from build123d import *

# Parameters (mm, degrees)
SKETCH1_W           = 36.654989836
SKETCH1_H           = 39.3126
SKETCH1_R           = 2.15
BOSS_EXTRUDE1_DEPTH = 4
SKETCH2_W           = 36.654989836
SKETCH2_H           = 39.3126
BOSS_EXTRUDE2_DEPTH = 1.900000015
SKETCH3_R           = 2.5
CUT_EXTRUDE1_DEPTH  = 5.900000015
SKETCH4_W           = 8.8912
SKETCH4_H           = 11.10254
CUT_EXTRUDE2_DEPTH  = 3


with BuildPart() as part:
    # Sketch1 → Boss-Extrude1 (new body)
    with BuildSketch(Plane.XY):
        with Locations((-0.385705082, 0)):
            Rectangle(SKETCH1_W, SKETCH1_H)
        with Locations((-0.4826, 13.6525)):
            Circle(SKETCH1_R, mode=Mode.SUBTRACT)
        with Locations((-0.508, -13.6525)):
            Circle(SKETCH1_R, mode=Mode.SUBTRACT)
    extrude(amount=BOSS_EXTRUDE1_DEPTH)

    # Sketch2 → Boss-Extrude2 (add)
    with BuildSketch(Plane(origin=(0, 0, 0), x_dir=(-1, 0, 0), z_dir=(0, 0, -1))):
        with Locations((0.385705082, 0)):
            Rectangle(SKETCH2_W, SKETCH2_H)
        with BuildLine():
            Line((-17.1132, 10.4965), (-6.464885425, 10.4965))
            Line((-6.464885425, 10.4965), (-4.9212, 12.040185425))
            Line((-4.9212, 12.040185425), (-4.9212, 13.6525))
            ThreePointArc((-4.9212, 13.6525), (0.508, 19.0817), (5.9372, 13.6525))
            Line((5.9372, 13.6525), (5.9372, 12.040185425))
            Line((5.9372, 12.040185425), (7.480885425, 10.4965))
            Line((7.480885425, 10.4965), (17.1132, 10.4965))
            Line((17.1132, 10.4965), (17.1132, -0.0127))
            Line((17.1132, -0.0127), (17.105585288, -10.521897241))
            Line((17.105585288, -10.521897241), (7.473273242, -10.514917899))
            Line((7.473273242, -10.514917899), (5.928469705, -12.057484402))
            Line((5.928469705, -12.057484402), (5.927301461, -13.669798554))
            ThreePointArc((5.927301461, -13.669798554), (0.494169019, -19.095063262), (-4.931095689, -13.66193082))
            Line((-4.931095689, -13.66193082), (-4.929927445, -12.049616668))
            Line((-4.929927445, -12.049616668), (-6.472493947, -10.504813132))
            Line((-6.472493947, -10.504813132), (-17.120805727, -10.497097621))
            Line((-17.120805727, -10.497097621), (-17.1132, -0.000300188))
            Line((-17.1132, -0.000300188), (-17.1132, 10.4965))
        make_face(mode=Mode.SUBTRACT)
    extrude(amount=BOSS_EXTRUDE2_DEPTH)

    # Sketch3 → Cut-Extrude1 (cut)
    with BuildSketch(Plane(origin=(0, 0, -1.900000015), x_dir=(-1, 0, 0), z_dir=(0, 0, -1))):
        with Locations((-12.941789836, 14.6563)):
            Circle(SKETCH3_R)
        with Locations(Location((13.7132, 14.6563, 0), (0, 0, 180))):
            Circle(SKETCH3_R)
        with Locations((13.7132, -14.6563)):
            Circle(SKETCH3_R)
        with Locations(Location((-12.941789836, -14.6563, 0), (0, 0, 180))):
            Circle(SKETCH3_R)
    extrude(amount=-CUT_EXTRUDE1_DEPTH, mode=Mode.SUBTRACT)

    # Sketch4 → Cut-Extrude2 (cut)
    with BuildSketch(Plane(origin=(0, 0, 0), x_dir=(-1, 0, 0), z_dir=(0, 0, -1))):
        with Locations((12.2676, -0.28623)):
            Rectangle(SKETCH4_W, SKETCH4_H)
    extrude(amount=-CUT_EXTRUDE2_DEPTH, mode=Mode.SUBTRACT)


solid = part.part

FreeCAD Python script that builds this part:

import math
import FreeCAD as App
import Part
import Sketcher

doc = App.newDocument("Part")
body = doc.addObject("PartDesign::Body", "Body")

sketch1 = doc.addObject("Sketcher::SketchObject", "Sketch")
body.addObject(sketch1)
sketch1.AttachmentSupport = (doc.XY_Plane, [""])
sketch1.MapMode = "FlatFace"
sketch1.addGeometry([
    Part.LineSegment(App.Vector(-18.7132, 19.6563, 0), App.Vector(-18.7132, -19.6563, 0)),
    Part.LineSegment(App.Vector(-18.7132, -19.6563, 0), App.Vector(17.94179, -19.6563, 0)),
    Part.LineSegment(App.Vector(17.94179, -19.6563, 0), App.Vector(17.94179, 19.6563, 0)),
    Part.LineSegment(App.Vector(17.94179, 19.6563, 0), App.Vector(-18.7132, 19.6563, 0)),
    Part.Circle(App.Vector(-0.508, -13.6525, 0), App.Vector(0, 0, 1), 2.15),
    Part.Circle(App.Vector(-0.4826, 13.6525, 0), App.Vector(0, 0, 1), 2.15),
], False)
sketch1.addConstraint([
    Sketcher.Constraint("Coincident", 0, 2, 1, 1),
    Sketcher.Constraint("Coincident", 1, 2, 2, 1),
    Sketcher.Constraint("Coincident", 2, 2, 3, 1),
    Sketcher.Constraint("Coincident", 3, 2, 0, 1),
    Sketcher.Constraint("Vertical", 0),
    Sketcher.Constraint("Horizontal", 1),
    Sketcher.Constraint("Vertical", 2),
    Sketcher.Constraint("Horizontal", 3),
    Sketcher.Constraint("Equal", 4, 5),
    Sketcher.Constraint("Diameter", 4, 4.3),
    Sketcher.Constraint("DistanceY", 0, 2, 0, 1, 39.3126),
    Sketcher.Constraint("DistanceX", 4, 3, -1, 1, 0.508),
    Sketcher.Constraint("DistanceY", 4, 3, 5, 3, 27.305),
    Sketcher.Constraint("DistanceX", 1, 1, 1, 2, 36.65499),
    Sketcher.Constraint("DistanceY", 4, 3, -1, 1, 13.6525),
    Sketcher.Constraint("DistanceX", 5, 3, -1, 1, 0.4826),
    Sketcher.Constraint("DistanceX", 0, 2, -1, 1, 18.7132),
    Sketcher.Constraint("DistanceY", 0, 2, -1, 1, 19.6563),
])
pad1 = doc.addObject("PartDesign::Pad", "Pad")
body.addObject(pad1)
pad1.Profile = sketch1
pad1.Length = 4

sketch2 = doc.addObject("Sketcher::SketchObject", "Sketch001")
body.addObject(sketch2)
sketch2.AttachmentSupport = (doc.XY_Plane, [""])
sketch2.MapMode = "FlatFace"
sketch2.addGeometry([
    Part.LineSegment(App.Vector(17.94179, 19.6563, 0), App.Vector(17.94179, -19.6563, 0)),
    Part.LineSegment(App.Vector(17.94179, -19.6563, 0), App.Vector(-18.7132, -19.6563, 0)),
    Part.LineSegment(App.Vector(-18.7132, -19.6563, 0), App.Vector(-18.7132, 19.6563, 0)),
    Part.LineSegment(App.Vector(-18.7132, 19.6563, 0), App.Vector(17.94179, 19.6563, 0)),
    Part.LineSegment(App.Vector(17.1132, -0.0003, 0), App.Vector(17.1132, 10.4965, 0)),
    Part.LineSegment(App.Vector(17.1132, 10.4965, 0), App.Vector(6.464885, 10.4965, 0)),
    Part.LineSegment(App.Vector(6.464885, 10.4965, 0), App.Vector(4.9212, 12.040185, 0)),
    Part.LineSegment(App.Vector(4.9212, 12.040185, 0), App.Vector(4.9212, 13.6525, 0)),
    Part.ArcOfCircle(Part.Circle(App.Vector(-0.508, 13.6525, 0), App.Vector(0, 0, 1), 5.4292), math.radians(0), math.radians(180)),
    Part.LineSegment(App.Vector(-5.9372, 13.6525, 0), App.Vector(-5.9372, 12.040185, 0)),
    Part.LineSegment(App.Vector(-5.9372, 12.040185, 0), App.Vector(-7.480885, 10.4965, 0)),
    Part.LineSegment(App.Vector(-7.480885, 10.4965, 0), App.Vector(-17.1132, 10.4965, 0)),
    Part.LineSegment(App.Vector(-17.1132, 10.4965, 0), App.Vector(-17.1132, -0.0127, 0)),
    Part.LineSegment(App.Vector(-17.1132, -0.0127, 0), App.Vector(-17.105585, -10.521897, 0)),
    Part.LineSegment(App.Vector(-17.105585, -10.521897, 0), App.Vector(-7.473273, -10.514918, 0)),
    Part.LineSegment(App.Vector(-7.473273, -10.514918, 0), App.Vector(-5.92847, -12.057484, 0)),
    Part.LineSegment(App.Vector(-5.92847, -12.057484, 0), App.Vector(-5.927301, -13.669799, 0)),
    Part.ArcOfCircle(Part.Circle(App.Vector(-0.498103, -13.665865, 0), App.Vector(0, 0, 1), 5.4292), math.radians(-179.958485), math.radians(0.041515)),
    Part.LineSegment(App.Vector(4.931096, -13.661931, 0), App.Vector(4.929927, -12.049617, 0)),
    Part.LineSegment(App.Vector(4.929927, -12.049617, 0), App.Vector(6.472494, -10.504813, 0)),
    Part.LineSegment(App.Vector(6.472494, -10.504813, 0), App.Vector(17.120806, -10.497098, 0)),
    Part.LineSegment(App.Vector(17.120806, -10.497098, 0), App.Vector(17.1132, -0.0003, 0)),
], False)
sketch2.addConstraint([
    Sketcher.Constraint("Coincident", 0, 2, 1, 1),
    Sketcher.Constraint("Coincident", 1, 2, 2, 1),
    Sketcher.Constraint("Coincident", 2, 2, 3, 1),
    Sketcher.Constraint("Coincident", 3, 2, 0, 1),
    Sketcher.Constraint("Coincident", 4, 2, 5, 1),
    Sketcher.Constraint("Coincident", 5, 2, 6, 1),
    Sketcher.Constraint("Coincident", 6, 2, 7, 1),
    Sketcher.Constraint("Tangent", 7, 2, 8, 1),
    Sketcher.Constraint("Tangent", 8, 2, 9, 1),
    Sketcher.Constraint("Coincident", 9, 2, 10, 1),
    Sketcher.Constraint("Coincident", 10, 2, 11, 1),
    Sketcher.Constraint("Coincident", 11, 2, 12, 1),
    Sketcher.Constraint("Coincident", 12, 2, 13, 1),
    Sketcher.Constraint("Coincident", 13, 2, 14, 1),
    Sketcher.Constraint("Coincident", 14, 2, 15, 1),
    Sketcher.Constraint("Coincident", 15, 2, 16, 1),
    Sketcher.Constraint("Tangent", 16, 2, 17, 1),
    Sketcher.Constraint("Tangent", 17, 2, 18, 1),
    Sketcher.Constraint("Coincident", 18, 2, 19, 1),
    Sketcher.Constraint("Coincident", 19, 2, 20, 1),
    Sketcher.Constraint("Coincident", 20, 2, 21, 1),
    Sketcher.Constraint("Coincident", 21, 2, 4, 1),
    Sketcher.Constraint("Vertical", 0),
    Sketcher.Constraint("Horizontal", 1),
    Sketcher.Constraint("Vertical", 2),
    Sketcher.Constraint("Horizontal", 3),
    Sketcher.Constraint("Vertical", 4),
    Sketcher.Constraint("Horizontal", 5),
    Sketcher.Constraint("Vertical", 7),
    Sketcher.Constraint("Vertical", 9),
    Sketcher.Constraint("Horizontal", 11),
    Sketcher.Constraint("Vertical", 12),
    Sketcher.Constraint("Equal", 8, 17),
    Sketcher.Constraint("Symmetric", 4, 2, 11, 2, -2),
    Sketcher.Constraint("Perpendicular", 6, 10),
    Sketcher.Constraint("Perpendicular", 13, 14),
    Sketcher.Constraint("Perpendicular", 14, 16),
    Sketcher.Constraint("Parallel", 16, 18),
    Sketcher.Constraint("Perpendicular", 15, 19),
    Sketcher.Constraint("Perpendicular", 18, 20),
    Sketcher.Constraint("Perpendicular", 20, 21),
    Sketcher.Constraint("Horizontal", 6, 2, 9, 2),
    Sketcher.Constraint("Equal", 6, 10),
    Sketcher.Constraint("Equal", 10, 15),
    Sketcher.Constraint("Equal", 16, 18),
    Sketcher.Constraint("Equal", 15, 19),
    Sketcher.Constraint("Radius", 8, 5.4292),
    Sketcher.Constraint("DistanceX", 2, 2, 11, 2, 1.6),
    Sketcher.Constraint("DistanceY", 0, 2, 0, 1, 39.3126),
    Sketcher.Constraint("DistanceY", 4, 1, 4, 2, 10.4968),
    Sketcher.Constraint("DistanceY", 12, 2, 12, 1, 10.5092),
    Sketcher.Constraint("DistanceX", 8, 3, -1, 1, 0.508),
    Sketcher.Constraint("DistanceY", 4, 2, 8, 3, 3.156),
    Sketcher.Constraint("DistanceX", 6, 2, 4, 2, 12.192),
    Sketcher.Constraint("Distance", 6, 2.183101),
    Sketcher.Constraint("Distance", 13, 10.5092),
    Sketcher.Constraint("Distance", 21, 10.4968),
    Sketcher.Constraint("DistanceX", 1, 2, 1, 1, 36.65499),
    Sketcher.Constraint("DistanceY", -1, 1, 8, 3, 13.6525),
    Sketcher.Constraint("DistanceY", 0, 2, -1, 1, 19.6563),
    Sketcher.Constraint("DistanceX", 16, 2, -1, 1, 5.927301),
    Sketcher.Constraint("DistanceY", 16, 2, -1, 1, 13.669799),
    Sketcher.Constraint("DistanceX", 13, 2, 10, 2, 9.6247),
])
pad2 = doc.addObject("PartDesign::Pad", "Pad001")
body.addObject(pad2)
pad2.Profile = sketch2
pad2.Length = 1.9
pad2.Reversed = True

sketch3 = doc.addObject("Sketcher::SketchObject", "Sketch002")
body.addObject(sketch3)
sketch3.AttachmentSupport = (doc.XY_Plane, [""])
sketch3.MapMode = "FlatFace"
sketch3.AttachmentOffset = App.Placement(App.Vector(0, 0, -1.9), App.Rotation())
sketch3.addGeometry([
    Part.Circle(App.Vector(12.94179, 14.6563, 0), App.Vector(0, 0, 1), 2.5),
    Part.Circle(App.Vector(-13.7132, 14.6563, 0), App.Vector(0, 0, 1), 2.5),
    Part.Circle(App.Vector(-13.7132, -14.6563, 0), App.Vector(0, 0, 1), 2.5),
    Part.Circle(App.Vector(12.94179, -14.6563, 0), App.Vector(0, 0, 1), 2.5),
], False)
sketch3.addConstraint([
    Sketcher.Constraint("Equal", 0, 1),
    Sketcher.Constraint("Equal", 1, 2),
    Sketcher.Constraint("Equal", 2, 3),
    Sketcher.Constraint("Symmetric", 1, 3, 2, 3, -1),
    Sketcher.Constraint("Symmetric", 0, 3, 3, 3, -1),
    Sketcher.Constraint("Horizontal", 0, 3, 1, 3),
    Sketcher.Constraint("Diameter", 0, 5.0),
    Sketcher.Constraint("DistanceY", -1, 1, 0, 3, 14.6563),
    Sketcher.Constraint("DistanceX", 1, 3, -1, 1, 13.7132),
    Sketcher.Constraint("DistanceX", -1, 1, 0, 3, 12.94179),
])
pocket1 = doc.addObject("PartDesign::Pocket", "Pocket")
body.addObject(pocket1)
pocket1.Profile = sketch3
pocket1.Length = 5.9
pocket1.Reversed = True

sketch4 = doc.addObject("Sketcher::SketchObject", "Sketch003")
body.addObject(sketch4)
sketch4.AttachmentSupport = (doc.XY_Plane, [""])
sketch4.MapMode = "FlatFace"
sketch4.addGeometry([
    Part.LineSegment(App.Vector(-7.822, 5.26504, 0), App.Vector(-7.822, -5.8375, 0)),
    Part.LineSegment(App.Vector(-7.822, -5.8375, 0), App.Vector(-16.7132, -5.8375, 0)),
    Part.LineSegment(App.Vector(-16.7132, -5.8375, 0), App.Vector(-16.7132, 5.26504, 0)),
    Part.LineSegment(App.Vector(-16.7132, 5.26504, 0), App.Vector(-7.822, 5.26504, 0)),
], False)
sketch4.addConstraint([
    Sketcher.Constraint("Coincident", 0, 2, 1, 1),
    Sketcher.Constraint("Coincident", 1, 2, 2, 1),
    Sketcher.Constraint("Coincident", 2, 2, 3, 1),
    Sketcher.Constraint("Coincident", 3, 2, 0, 1),
    Sketcher.Constraint("Vertical", 0),
    Sketcher.Constraint("Horizontal", 1),
    Sketcher.Constraint("Vertical", 2),
    Sketcher.Constraint("Horizontal", 3),
    Sketcher.Constraint("DistanceX", 1, 2, 1, 1, 8.8912),
    Sketcher.Constraint("DistanceX", 0, 2, -1, 1, 7.822),
    Sketcher.Constraint("DistanceY", 0, 2, 0, 1, 11.10254),
    Sketcher.Constraint("DistanceY", 0, 2, -1, 1, 5.8375),
])
pocket2 = doc.addObject("PartDesign::Pocket", "Pocket001")
body.addObject(pocket2)
pocket2.Profile = sketch4
pocket2.Length = 3
pocket2.Reversed = True

doc.recompute()
